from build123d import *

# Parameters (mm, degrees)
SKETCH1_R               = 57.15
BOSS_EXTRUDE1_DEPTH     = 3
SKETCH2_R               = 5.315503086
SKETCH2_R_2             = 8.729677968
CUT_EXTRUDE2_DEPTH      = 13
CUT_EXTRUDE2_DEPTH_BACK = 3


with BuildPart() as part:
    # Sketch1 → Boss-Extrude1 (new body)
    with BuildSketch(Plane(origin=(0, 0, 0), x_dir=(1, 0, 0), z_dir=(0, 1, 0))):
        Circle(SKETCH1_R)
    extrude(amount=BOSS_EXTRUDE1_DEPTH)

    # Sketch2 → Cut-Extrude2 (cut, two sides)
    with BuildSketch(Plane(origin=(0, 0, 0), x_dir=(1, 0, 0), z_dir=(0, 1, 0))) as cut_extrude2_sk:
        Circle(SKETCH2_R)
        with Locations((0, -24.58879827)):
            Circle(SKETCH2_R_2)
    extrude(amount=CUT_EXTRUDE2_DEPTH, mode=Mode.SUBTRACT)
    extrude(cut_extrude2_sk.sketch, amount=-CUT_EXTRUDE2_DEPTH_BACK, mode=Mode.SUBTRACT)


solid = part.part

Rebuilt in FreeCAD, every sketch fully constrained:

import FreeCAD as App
import Part
import Sketcher
from FreeCAD import Vector
Q = App.Units.Quantity

doc = App.newDocument("Part")
body = doc.addObject("PartDesign::Body", "Body")

sketch1 = body.newObject("Sketcher::SketchObject", "Sketch")
sketch1.AttachmentSupport = (doc.getObject("XZ_Plane"), [""])
sketch1.MapMode = "FlatFace"
sketch1.addGeometry(Part.Circle(Vector(0, 0, 0), Vector(0, 0, 1), 57.15), False)
sketch1.addConstraint([
    Sketcher.Constraint("Coincident", 0, 3, -1, 1),
    Sketcher.Constraint("Diameter", 0, Q("114.3 mm")),
])
pad1 = body.newObject("PartDesign::Pad", "Pad")
pad1.Profile = sketch1
pad1.Length = 3
pad1.Reversed = True

sketch2 = body.newObject("Sketcher::SketchObject", "Sketch001")
sketch2.AttachmentSupport = (doc.getObject("XZ_Plane"), [""])
sketch2.MapMode = "FlatFace"
sketch2.addGeometry([
    Part.Circle(Vector(0, 0, 0), Vector(0, 0, 1), 5.315503),
    Part.Circle(Vector(0, 24.588798, 0), Vector(0, 0, 1), 8.729678),
], False)
sketch2.addConstraint([
    Sketcher.Constraint("Coincident", 0, 3, -1, 1),
    Sketcher.Constraint("PointOnObject", 1, 3, -2),
    Sketcher.Constraint("Diameter", 0, Q("10.631006 mm")),
    Sketcher.Constraint("Diameter", 1, Q("17.459356 mm")),
    Sketcher.Constraint("DistanceY", -1, 1, 1, 3, Q("24.588798 mm")),
])
pocket1 = body.newObject("PartDesign::Pocket", "Pocket")
pocket1.Profile = sketch2
pocket1.Type = "ThroughAll"
pocket1.Midplane = True

doc.recompute()
